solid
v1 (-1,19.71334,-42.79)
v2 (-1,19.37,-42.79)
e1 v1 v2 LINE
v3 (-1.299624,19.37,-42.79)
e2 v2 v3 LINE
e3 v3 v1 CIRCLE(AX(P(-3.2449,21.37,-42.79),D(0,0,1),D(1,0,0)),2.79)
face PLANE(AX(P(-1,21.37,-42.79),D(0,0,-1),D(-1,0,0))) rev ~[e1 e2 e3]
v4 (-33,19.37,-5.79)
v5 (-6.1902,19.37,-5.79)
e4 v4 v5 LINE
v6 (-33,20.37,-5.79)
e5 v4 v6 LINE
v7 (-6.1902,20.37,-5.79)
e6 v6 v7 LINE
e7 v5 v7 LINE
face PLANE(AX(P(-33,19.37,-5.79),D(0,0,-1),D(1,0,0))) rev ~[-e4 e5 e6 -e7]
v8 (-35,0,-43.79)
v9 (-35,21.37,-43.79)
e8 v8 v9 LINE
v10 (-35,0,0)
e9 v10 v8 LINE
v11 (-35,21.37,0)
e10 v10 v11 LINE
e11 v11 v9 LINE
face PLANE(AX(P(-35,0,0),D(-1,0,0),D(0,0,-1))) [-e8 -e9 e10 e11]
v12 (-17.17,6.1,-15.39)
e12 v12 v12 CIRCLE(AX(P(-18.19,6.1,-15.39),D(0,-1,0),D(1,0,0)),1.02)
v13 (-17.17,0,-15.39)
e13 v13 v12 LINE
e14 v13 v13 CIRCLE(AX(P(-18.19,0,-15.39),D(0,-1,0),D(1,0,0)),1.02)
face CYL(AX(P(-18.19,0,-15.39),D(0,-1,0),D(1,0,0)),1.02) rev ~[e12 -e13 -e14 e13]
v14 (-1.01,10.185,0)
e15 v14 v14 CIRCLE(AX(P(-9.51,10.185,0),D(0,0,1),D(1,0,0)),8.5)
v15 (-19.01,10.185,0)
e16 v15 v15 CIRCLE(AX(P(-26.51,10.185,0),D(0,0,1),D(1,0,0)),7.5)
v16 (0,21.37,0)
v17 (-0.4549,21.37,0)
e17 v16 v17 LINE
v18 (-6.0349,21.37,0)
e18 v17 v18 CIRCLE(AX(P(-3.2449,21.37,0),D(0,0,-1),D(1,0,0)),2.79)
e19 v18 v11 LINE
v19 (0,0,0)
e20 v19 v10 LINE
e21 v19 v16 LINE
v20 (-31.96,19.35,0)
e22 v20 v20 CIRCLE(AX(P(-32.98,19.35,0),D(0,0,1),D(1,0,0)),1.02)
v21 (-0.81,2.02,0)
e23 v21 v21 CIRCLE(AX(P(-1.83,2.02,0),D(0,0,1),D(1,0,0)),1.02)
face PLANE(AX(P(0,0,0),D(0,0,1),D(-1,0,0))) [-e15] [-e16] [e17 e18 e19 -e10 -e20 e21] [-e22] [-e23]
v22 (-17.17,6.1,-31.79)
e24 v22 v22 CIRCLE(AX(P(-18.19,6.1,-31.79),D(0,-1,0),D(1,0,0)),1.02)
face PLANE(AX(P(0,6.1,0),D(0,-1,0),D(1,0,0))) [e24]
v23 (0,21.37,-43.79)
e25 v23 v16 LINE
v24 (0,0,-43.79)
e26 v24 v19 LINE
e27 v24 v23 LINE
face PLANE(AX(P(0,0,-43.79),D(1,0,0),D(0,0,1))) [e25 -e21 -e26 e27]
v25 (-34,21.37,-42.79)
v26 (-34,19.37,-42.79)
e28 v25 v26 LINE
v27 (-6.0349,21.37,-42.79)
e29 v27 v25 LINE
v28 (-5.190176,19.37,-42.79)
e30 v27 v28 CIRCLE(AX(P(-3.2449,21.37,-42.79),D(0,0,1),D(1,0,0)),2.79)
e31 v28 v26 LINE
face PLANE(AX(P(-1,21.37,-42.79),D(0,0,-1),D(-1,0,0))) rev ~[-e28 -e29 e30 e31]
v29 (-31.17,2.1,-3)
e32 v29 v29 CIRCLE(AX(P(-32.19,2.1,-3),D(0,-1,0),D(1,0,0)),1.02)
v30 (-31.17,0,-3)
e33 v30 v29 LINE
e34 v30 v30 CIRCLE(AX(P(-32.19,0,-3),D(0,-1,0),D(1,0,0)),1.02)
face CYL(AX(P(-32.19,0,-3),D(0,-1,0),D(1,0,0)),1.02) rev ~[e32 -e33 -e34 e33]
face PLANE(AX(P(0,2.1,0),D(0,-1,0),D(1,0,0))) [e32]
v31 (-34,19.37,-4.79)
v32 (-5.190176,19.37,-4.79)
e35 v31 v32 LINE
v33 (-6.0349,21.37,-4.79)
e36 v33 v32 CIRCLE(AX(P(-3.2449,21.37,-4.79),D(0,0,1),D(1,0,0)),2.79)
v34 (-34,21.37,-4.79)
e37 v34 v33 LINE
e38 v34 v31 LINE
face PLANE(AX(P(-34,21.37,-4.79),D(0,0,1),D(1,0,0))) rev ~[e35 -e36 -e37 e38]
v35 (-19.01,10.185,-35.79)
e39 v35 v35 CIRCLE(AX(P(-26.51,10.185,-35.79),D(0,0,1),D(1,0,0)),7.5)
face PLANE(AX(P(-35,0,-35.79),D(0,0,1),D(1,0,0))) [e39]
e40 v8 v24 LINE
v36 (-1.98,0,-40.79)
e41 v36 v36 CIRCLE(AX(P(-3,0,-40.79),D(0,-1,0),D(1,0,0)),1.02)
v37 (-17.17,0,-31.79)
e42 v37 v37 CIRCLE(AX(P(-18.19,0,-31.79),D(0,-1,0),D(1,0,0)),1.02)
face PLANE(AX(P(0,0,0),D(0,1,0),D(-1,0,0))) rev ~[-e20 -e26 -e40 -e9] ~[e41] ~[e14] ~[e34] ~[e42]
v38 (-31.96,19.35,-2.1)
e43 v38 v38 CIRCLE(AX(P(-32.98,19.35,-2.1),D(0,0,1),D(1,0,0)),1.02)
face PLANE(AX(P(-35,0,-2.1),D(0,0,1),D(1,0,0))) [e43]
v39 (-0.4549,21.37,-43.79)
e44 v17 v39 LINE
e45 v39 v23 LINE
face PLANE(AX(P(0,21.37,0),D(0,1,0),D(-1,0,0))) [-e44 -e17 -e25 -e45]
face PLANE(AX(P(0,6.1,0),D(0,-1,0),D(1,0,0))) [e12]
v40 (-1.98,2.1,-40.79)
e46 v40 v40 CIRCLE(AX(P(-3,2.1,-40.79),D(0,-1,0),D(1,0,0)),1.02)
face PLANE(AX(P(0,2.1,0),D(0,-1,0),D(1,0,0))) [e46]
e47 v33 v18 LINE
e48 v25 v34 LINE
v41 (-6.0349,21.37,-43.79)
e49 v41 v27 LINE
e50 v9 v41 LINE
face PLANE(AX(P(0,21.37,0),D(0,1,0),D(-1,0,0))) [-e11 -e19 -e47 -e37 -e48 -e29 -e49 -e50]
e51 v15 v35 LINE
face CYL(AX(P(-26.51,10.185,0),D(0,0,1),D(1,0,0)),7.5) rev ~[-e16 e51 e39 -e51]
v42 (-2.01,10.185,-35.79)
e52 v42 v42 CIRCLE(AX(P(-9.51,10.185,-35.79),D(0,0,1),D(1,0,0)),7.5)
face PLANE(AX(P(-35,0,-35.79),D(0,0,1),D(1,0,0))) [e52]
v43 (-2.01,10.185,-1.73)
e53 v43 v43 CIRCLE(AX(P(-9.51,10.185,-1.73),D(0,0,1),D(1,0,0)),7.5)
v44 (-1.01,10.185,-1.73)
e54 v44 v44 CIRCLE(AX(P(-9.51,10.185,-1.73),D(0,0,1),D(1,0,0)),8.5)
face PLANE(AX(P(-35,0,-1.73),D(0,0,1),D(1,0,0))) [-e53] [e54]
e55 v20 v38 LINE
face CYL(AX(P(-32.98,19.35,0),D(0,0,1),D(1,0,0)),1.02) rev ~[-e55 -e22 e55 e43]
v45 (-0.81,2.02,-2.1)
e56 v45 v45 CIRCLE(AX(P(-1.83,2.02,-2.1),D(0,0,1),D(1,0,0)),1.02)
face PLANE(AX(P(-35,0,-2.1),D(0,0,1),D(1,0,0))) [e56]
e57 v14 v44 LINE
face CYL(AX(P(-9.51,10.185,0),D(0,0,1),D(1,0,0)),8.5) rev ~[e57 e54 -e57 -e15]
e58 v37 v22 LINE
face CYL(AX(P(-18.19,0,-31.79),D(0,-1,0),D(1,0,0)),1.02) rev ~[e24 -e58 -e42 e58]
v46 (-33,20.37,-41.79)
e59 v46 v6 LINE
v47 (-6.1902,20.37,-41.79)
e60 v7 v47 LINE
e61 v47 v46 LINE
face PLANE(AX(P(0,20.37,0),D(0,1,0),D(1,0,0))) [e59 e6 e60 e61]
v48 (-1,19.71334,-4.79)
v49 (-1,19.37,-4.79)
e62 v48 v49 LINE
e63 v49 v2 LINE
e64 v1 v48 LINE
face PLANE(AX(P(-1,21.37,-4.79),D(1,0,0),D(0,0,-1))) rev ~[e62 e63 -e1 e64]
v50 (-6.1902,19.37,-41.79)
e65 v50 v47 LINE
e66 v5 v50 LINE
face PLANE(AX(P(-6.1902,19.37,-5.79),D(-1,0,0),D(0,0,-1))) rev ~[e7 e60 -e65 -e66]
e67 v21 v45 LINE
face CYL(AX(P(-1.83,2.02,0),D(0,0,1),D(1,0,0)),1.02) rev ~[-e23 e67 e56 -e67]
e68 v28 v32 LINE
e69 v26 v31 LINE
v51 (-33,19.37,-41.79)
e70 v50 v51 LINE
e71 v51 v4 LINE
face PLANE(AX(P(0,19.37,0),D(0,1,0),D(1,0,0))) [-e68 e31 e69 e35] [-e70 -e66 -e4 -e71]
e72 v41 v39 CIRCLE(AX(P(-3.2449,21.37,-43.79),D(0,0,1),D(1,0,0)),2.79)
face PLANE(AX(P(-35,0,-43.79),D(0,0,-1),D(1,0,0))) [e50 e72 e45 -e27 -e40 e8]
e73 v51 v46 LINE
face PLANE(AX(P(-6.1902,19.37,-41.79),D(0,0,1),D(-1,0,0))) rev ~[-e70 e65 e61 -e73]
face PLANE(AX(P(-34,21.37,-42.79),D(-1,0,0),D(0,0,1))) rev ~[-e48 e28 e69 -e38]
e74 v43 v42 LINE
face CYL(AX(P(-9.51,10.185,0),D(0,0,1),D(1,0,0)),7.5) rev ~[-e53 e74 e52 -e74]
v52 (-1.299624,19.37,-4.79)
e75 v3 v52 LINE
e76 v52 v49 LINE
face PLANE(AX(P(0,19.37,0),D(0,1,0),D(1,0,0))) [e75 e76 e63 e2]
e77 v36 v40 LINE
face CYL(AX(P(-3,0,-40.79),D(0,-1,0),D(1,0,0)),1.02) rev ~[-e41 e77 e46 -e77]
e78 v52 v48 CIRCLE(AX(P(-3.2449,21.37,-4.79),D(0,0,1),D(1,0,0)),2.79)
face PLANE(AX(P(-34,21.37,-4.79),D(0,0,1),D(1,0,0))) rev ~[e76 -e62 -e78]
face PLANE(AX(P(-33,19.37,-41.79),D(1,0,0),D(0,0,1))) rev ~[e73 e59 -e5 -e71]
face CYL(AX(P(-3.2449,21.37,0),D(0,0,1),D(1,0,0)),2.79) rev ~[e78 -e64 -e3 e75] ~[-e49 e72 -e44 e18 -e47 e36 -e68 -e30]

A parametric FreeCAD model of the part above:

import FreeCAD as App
import Part
import Sketcher
from FreeCAD import Vector
Q = App.Units.Quantity


def add_polygon(sketch, points):
    """Adds a closed chain of lines whose ends are joined by coincident constraints."""
    first, n = sketch.GeometryCount, len(points)
    for a, b in zip(points, points[1:] + points[:1]):
        sketch.addGeometry(Part.LineSegment(App.Vector(*a, 0), App.Vector(*b, 0)), False)
    for i in range(n):
        sketch.addConstraint(Sketcher.Constraint("Coincident", first + i, 2, first + (i + 1) % n, 1))

doc = App.newDocument("Part")
body = doc.addObject("PartDesign::Body", "Body")

sketch1 = body.newObject("Sketcher::SketchObject", "Sketch")
sketch1.AttachmentSupport = (doc.getObject("XZ_Plane"), [""])
sketch1.MapMode = "FlatFace"
add_polygon(sketch1, [(-35, 0), (0, 0), (0, -44), (-35, -44)])
sketch1.addConstraint([
    Sketcher.Constraint("Horizontal", 0),
    Sketcher.Constraint("Vertical", 1),
    Sketcher.Constraint("Horizontal", 2),
    Sketcher.Constraint("Vertical", 3),
    Sketcher.Constraint("Coincident", 0, 2, -1, 1),
    Sketcher.Constraint("DistanceX", 0, 1, 0, 2, Q("35 mm")),
    Sketcher.Constraint("DistanceY", 1, 2, 1, 1, Q("43.79 mm")),
])
pad1 = body.newObject("PartDesign::Pad", "Pad")
pad1.Profile = sketch1
pad1.Length = 21.37
pad1.Reversed = True

sketch2 = body.newObject("Sketcher::SketchObject", "Sketch001")
sketch2.AttachmentSupport = (doc.getObject("XY_Plane"), [""])
sketch2.MapMode = "FlatFace"
sketch2.addGeometry([
    Part.Circle(Vector(-27, 10, 0), Vector(0, 0, 1), 8),
    Part.Circle(Vector(-10, 10, 0), Vector(0, 0, 1), 8),
], False)
sketch2.addConstraint([
    Sketcher.Constraint("Equal", 0, 1),
    Sketcher.Constraint("Horizontal", 0, 3, 1, 3),
    Sketcher.Constraint("Diameter", 0, Q("15 mm")),
    Sketcher.Constraint("DistanceX", 0, 3, 1, 3, Q("17 mm")),
    Sketcher.Constraint("DistanceX", 0, 3, -1, 1, Q("26.51 mm")),
    Sketcher.Constraint("DistanceY", -1, 1, 0, 3, Q("10.185 mm")),
])
pocket1 = body.newObject("PartDesign::Pocket", "Pocket")
pocket1.Profile = sketch2
pocket1.Length = 35.79

sketch3 = body.newObject("Sketcher::SketchObject", "Sketch002")
sketch3.AttachmentSupport = (doc.getObject("XY_Plane"), [""])
sketch3.MapMode = "FlatFace"
sketch3.addGeometry([
    Part.Circle(Vector(-10, 10, 0), Vector(0, 0, 1), 8),
    Part.Circle(Vector(-10, 10, 0), Vector(0, 0, 1), 8),
], False)
sketch3.addConstraint([
    Sketcher.Constraint("Coincident", 1, 3, 0, 3),
    Sketcher.Constraint("Diameter", 0, Q("17 mm")),
    Sketcher.Constraint("Diameter", 1, Q("15 mm")),
    Sketcher.Constraint("DistanceX", 0, 3, -1, 1, Q("9.51 mm")),
    Sketcher.Constraint("DistanceY", -1, 1, 0, 3, Q("10.185 mm")),
])
pocket2 = body.newObject("PartDesign::Pocket", "Pocket001")
pocket2.Profile = sketch3
pocket2.Length = 1.73

sketch4 = body.newObject("Sketcher::SketchObject", "Sketch003")
sketch4.AttachmentSupport = (doc.getObject("XY_Plane"), [""])
sketch4.MapMode = "FlatFace"
sketch4.addGeometry([
    Part.Circle(Vector(-33, 19.4, 0), Vector(0, 0, 1), 1),
    Part.Circle(Vector(-1.8, 2, 0), Vector(0, 0, 1), 1),
], False)
sketch4.addConstraint([
    Sketcher.Constraint("Equal", 0, 1),
    Sketcher.Constraint("Diameter", 0, Q("2.04 mm")),
    Sketcher.Constraint("DistanceX", 0, 3, -1, 1, Q("32.98 mm")),
    Sketcher.Constraint("DistanceY", -1, 1, 0, 3, Q("19.35 mm")),
    Sketcher.Constraint("DistanceX", 1, 3, -1, 1, Q("1.83 mm")),
    Sketcher.Constraint("DistanceY", -1, 1, 1, 3, Q("2.02 mm")),
])
pocket3 = body.newObject("PartDesign::Pocket", "Pocket002")
pocket3.Profile = sketch4
pocket3.Length = 2.1

sketch5 = body.newObject("Sketcher::SketchObject", "Sketch004")
sketch5.AttachmentSupport = (doc.getObject("XZ_Plane"), [""])
sketch5.MapMode = "FlatFace"
sketch5.addGeometry([
    Part.Circle(Vector(-32.2, -3, 0), Vector(0, 0, 1), 1),
    Part.Circle(Vector(-3, -40.8, 0), Vector(0, 0, 1), 1),
], False)
sketch5.addConstraint([
    Sketcher.Constraint("Equal", 0, 1),
    Sketcher.Constraint("Diameter", 0, Q("2.04 mm")),
    Sketcher.Constraint("DistanceY", 0, 3, -1, 1, Q("3 mm")),
    Sketcher.Constraint("DistanceX", 1, 3, -1, 1, Q("3 mm")),
    Sketcher.Constraint("DistanceX", 0, 3, -1, 1, Q("32.19 mm")),
    Sketcher.Constraint("DistanceY", 1, 3, -1, 1, Q("40.79 mm")),
])
pocket4 = body.newObject("PartDesign::Pocket", "Pocket003")
pocket4.Profile = sketch5
pocket4.Length = 2.1

sketch6 = body.newObject("Sketcher::SketchObject", "Sketch005")
sketch6.AttachmentSupport = (doc.getObject("XZ_Plane"), [""])
sketch6.MapMode = "FlatFace"
sketch6.addGeometry([
    Part.Circle(Vector(-18.2, -15.4, 0), Vector(0, 0, 1), 1),
    Part.Circle(Vector(-18.2, -31.8, 0), Vector(0, 0, 1), 1),
], False)
sketch6.addConstraint([
    Sketcher.Constraint("Equal", 0, 1),
    Sketcher.Constraint("Vertical", 0, 3, 1, 3),
    Sketcher.Constraint("Diameter", 0, Q("2.04 mm")),
    Sketcher.Constraint("DistanceY", 1, 3, 0, 3, Q("16.4 mm")),
    Sketcher.Constraint("DistanceX", 0, 3, -1, 1, Q("18.19 mm")),
    Sketcher.Constraint("DistanceY", 0, 3, -1, 1, Q("15.39 mm")),
])
pocket5 = body.newObject("PartDesign::Pocket", "Pocket004")
pocket5.Profile = sketch6
pocket5.Length = 6.1

sketch7 = body.newObject("Sketcher::SketchObject", "Sketch006")
sketch7.AttachmentSupport = (doc.getObject("XZ_Plane"), [""])
sketch7.MapMode = "FlatFace"
sketch7.AttachmentOffset = App.Placement(Vector(0, 0, -21.37), App.Rotation())
add_polygon(sketch7, [(-34, -43), (-34, -5), (-1, -5), (-1, -43)])
sketch7.addConstraint([
    Sketcher.Constraint("Vertical", 0),
    Sketcher.Constraint("Horizontal", 1),
    Sketcher.Constraint("Vertical", 2),
    Sketcher.Constraint("Horizontal", 3),
    Sketcher.Constraint("DistanceX", 1, 2, -1, 1, Q("1 mm")),
    Sketcher.Constraint("DistanceX", 1, 1, 1, 2, Q("33 mm")),
    Sketcher.Constraint("DistanceY", 0, 1, 0, 2, Q("38 mm")),
    Sketcher.Constraint("DistanceY", 0, 2, -1, 1, Q("4.79 mm")),
])
pocket6 = body.newObject("PartDesign::Pocket", "Pocket005")
pocket6.Profile = sketch7
pocket6.Length = 2
pocket6.Reversed = True

sketch8 = body.newObject("Sketcher::SketchObject", "Sketch007")
sketch8.AttachmentSupport = (doc.getObject("XY_Plane"), [""])
sketch8.MapMode = "FlatFace"
sketch8.addGeometry(Part.Circle(Vector(-3.2, 21.4, 0), Vector(0, 0, 1), 2.8), False)
sketch8.addConstraint([
    Sketcher.Constraint("Diameter", 0, Q("5.58 mm")),
    Sketcher.Constraint("DistanceY", -1, 1, 0, 3, Q("21.37 mm")),
    Sketcher.Constraint("DistanceX", 0, 3, -1, 1, Q("3.245 mm")),
])
pocket7 = body.newObject("PartDesign::Pocket", "Pocket006")
pocket7.Profile = sketch8
pocket7.Type = "ThroughAll"

sketch9 = body.newObject("Sketcher::SketchObject", "Sketch008")
sketch9.AttachmentSupport = (doc.getObject("XZ_Plane"), [""])
sketch9.MapMode = "FlatFace"
sketch9.AttachmentOffset = App.Placement(Vector(0, 0, -19.37), App.Rotation())
add_polygon(sketch9, [(-33, -42), (-33, -6), (-6, -6), (-6, -42)])
sketch9.addConstraint([
    Sketcher.Constraint("Vertical", 0),
    Sketcher.Constraint("Horizontal", 1),
    Sketcher.Constraint("Vertical", 2),
    Sketcher.Constraint("Horizontal", 3),
    Sketcher.Constraint("DistanceY", 0, 1, 0, 2, Q("36 mm")),
    Sketcher.Constraint("DistanceX", 0, 2, -1, 1, Q("33 mm")),
    Sketcher.Constraint("DistanceY", 0, 2, -1, 1, Q("5.79 mm")),
    Sketcher.Constraint("DistanceX", 1, 1, 1, 2, Q("26.8098 mm")),
])
pad2 = body.newObject("PartDesign::Pad", "Pad001")
pad2.Profile = sketch9
pad2.Length = 1
pad2.Reversed = True

doc.recompute()
